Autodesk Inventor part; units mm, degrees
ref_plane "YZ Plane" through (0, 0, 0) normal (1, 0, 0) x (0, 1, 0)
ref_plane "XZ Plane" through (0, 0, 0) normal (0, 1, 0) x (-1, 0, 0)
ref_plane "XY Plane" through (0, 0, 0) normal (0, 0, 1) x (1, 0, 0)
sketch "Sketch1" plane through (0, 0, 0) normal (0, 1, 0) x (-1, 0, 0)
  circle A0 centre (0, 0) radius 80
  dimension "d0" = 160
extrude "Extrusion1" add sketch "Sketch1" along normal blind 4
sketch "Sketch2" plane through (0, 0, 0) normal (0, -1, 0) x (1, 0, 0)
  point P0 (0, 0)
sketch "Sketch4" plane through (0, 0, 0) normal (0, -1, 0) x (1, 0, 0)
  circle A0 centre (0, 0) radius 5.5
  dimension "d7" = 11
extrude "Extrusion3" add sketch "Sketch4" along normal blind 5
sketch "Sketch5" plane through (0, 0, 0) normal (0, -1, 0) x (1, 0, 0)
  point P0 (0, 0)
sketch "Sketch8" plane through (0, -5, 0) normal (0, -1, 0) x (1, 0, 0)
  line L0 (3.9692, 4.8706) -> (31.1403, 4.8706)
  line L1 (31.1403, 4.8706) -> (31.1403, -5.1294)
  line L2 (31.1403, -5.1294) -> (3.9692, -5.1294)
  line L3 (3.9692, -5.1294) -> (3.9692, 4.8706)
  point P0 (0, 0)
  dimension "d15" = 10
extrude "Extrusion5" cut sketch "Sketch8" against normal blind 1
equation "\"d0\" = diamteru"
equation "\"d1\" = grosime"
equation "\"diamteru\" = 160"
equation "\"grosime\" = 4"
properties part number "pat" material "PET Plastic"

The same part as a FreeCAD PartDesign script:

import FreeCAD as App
import Part
import Sketcher

V = App.Vector
Q = App.Units.Quantity

doc = App.newDocument("Part")
body = doc.addObject("PartDesign::Body", "Body")

sketch1 = body.newObject("Sketcher::SketchObject", "Sketch")
sketch1.AttachmentSupport = (doc.getObject("XZ_Plane"), [""])
sketch1.MapMode = "FlatFace"
sketch1.addGeometry(Part.Circle(V(0, 0, 0), V(0, 0, 1), 80), False)
sketch1.addConstraint(Sketcher.Constraint("Coincident", 0, 3, -1, 1))
sketch1.addConstraint(Sketcher.Constraint("Diameter", 0, Q("160 mm")))
pad1 = body.newObject("PartDesign::Pad", "Pad")
pad1.Profile = sketch1
pad1.Length = 4
pad1.Reversed = True

sketch2 = body.newObject("Sketcher::SketchObject", "Sketch001")
sketch2.AttachmentSupport = (doc.getObject("XZ_Plane"), [""])
sketch2.MapMode = "FlatFace"
sketch2.addGeometry(Part.Circle(V(0, 0, 0), V(0, 0, 1), 6), False)
sketch2.addConstraint(Sketcher.Constraint("Coincident", 0, 3, -1, 1))
sketch2.addConstraint(Sketcher.Constraint("Diameter", 0, Q("11 mm")))
pad2 = body.newObject("PartDesign::Pad", "Pad001")
pad2.Profile = sketch2
pad2.Length = 5

sketch3 = body.newObject("Sketcher::SketchObject", "Sketch002")
sketch3.AttachmentSupport = (doc.getObject("XZ_Plane"), [""])
sketch3.MapMode = "FlatFace"
sketch3.AttachmentOffset = App.Placement(V(0, 0, 5), App.Rotation())
sketch3.addGeometry(Part.LineSegment(V(31, 5, 0), V(4, 5, 0)), False)
sketch3.addGeometry(Part.LineSegment(V(4, 5, 0), V(4, -5, 0)), False)
sketch3.addGeometry(Part.LineSegment(V(4, -5, 0), V(31, -5, 0)), False)
sketch3.addGeometry(Part.LineSegment(V(31, -5, 0), V(31, 5, 0)), False)
sketch3.addConstraint(Sketcher.Constraint("Coincident", 0, 2, 1, 1))
sketch3.addConstraint(Sketcher.Constraint("Coincident", 1, 2, 2, 1))
sketch3.addConstraint(Sketcher.Constraint("Coincident", 2, 2, 3, 1))
sketch3.addConstraint(Sketcher.Constraint("Coincident", 3, 2, 0, 1))
sketch3.addConstraint(Sketcher.Constraint("Horizontal", 0))
sketch3.addConstraint(Sketcher.Constraint("Vertical", 1))
sketch3.addConstraint(Sketcher.Constraint("Horizontal", 2))
sketch3.addConstraint(Sketcher.Constraint("Vertical", 3))
sketch3.addConstraint(Sketcher.Constraint("DistanceY", 1, 2, 1, 1, Q("10 mm")))
sketch3.addConstraint(Sketcher.Constraint("DistanceX", 0, 2, 0, 1, Q("27.171 mm")))
sketch3.addConstraint(Sketcher.Constraint("DistanceX", -1, 1, 0, 2, Q("3.9692 mm")))
sketch3.addConstraint(Sketcher.Constraint("DistanceY", -1, 1, 0, 2, Q("4.8706 mm")))
pocket1 = body.newObject("PartDesign::Pocket", "Pocket")
pocket1.Profile = sketch3
pocket1.Length = 1

doc.recompute()
